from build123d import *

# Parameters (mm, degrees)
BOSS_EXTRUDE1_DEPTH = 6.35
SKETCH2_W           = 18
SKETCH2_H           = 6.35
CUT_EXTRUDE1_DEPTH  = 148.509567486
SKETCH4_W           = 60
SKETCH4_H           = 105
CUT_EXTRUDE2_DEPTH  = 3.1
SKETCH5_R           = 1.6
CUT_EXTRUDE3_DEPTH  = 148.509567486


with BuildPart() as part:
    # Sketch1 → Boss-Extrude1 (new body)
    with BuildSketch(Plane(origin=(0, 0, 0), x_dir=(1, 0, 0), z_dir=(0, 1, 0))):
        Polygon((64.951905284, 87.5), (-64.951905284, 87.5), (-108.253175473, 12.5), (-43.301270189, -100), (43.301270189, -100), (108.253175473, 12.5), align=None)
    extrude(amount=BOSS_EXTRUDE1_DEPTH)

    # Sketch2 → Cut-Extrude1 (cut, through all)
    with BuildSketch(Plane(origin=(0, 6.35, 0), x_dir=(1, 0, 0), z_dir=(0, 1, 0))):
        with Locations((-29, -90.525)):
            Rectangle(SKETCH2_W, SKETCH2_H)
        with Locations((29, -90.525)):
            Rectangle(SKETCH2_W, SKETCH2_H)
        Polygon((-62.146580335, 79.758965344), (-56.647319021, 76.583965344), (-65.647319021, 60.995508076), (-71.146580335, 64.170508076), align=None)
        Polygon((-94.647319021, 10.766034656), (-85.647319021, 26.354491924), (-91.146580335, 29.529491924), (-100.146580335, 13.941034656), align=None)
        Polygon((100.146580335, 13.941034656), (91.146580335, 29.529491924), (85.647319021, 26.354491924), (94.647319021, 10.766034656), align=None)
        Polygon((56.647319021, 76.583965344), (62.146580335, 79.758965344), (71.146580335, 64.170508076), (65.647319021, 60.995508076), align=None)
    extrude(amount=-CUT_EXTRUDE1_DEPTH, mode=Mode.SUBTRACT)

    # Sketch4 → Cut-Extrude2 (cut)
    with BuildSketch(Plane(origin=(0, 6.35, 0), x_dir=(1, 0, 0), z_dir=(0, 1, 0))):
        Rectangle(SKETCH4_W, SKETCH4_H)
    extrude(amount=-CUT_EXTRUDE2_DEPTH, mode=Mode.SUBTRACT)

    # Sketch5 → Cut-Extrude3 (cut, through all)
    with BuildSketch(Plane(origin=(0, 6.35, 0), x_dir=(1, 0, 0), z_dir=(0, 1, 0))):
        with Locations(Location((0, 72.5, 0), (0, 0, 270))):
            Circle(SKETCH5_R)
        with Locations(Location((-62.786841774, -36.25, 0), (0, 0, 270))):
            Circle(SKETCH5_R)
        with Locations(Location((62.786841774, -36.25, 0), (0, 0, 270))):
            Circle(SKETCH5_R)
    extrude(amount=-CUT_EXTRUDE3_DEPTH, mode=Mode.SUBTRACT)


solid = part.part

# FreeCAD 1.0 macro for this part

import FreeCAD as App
import Part
import Sketcher

V = App.Vector
Q = App.Units.Quantity


def add_polygon(sketch, points):
    """Adds a closed chain of lines whose ends are joined by coincident constraints."""
    first, n = sketch.GeometryCount, len(points)
    for a, b in zip(points, points[1:] + points[:1]):
        sketch.addGeometry(Part.LineSegment(App.Vector(*a, 0), App.Vector(*b, 0)), False)
    for i in range(n):
        sketch.addConstraint(Sketcher.Constraint("Coincident", first + i, 2, first + (i + 1) % n, 1))

doc = App.newDocument("Part")
params = doc.addObject("Spreadsheet::Sheet", "Params")
for row, (alias, value) in enumerate([
    ("pad1_length", "6.35 mm"),
    ("sketch2_width", "18 mm"),
    ("sketch2_length", "18 mm"),
    ("sketch2_height", "6.35 mm"),
    ("sketch2_length2", "6.35 mm"),
    ("sketch3_width", "60 mm"),
    ("sketch3_height", "105 mm"),
    ("pocket2_length", "3.1 mm"),
    ("sketch4_diameter", "3.2 mm"),
], start=1):
    params.set(f"A{row}", alias)
    params.set(f"B{row}", "=" + value)
    params.setAlias(f"B{row}", alias)

body = doc.addObject("PartDesign::Body", "Body")

# Sketch on XZ plane
sketch1 = doc.addObject("Sketcher::SketchObject", "Sketch")
body.addObject(sketch1)
sketch1.AttachmentSupport = (doc.XZ_Plane, [""])
sketch1.MapMode = "FlatFace"
add_polygon(sketch1, [(65, -88), (-65, -88), (-108, -12), (-43, 100), (43, 100), (108, -12)])  # lines 0-5
sketch1.addConstraint(Sketcher.Constraint("Horizontal", 0))
sketch1.addConstraint(Sketcher.Constraint("Horizontal", 3))
sketch1.addConstraint(Sketcher.Constraint("Symmetric", 1, 2, 4, 2, -2))
sketch1.addConstraint(Sketcher.Constraint("Parallel", 1, 4))
sketch1.addConstraint(Sketcher.Constraint("Parallel", 2, 5))
sketch1.addConstraint(Sketcher.Constraint("Equal", 2, 4))
sketch1.addConstraint(Sketcher.Constraint("Angle", 1, Q("120 deg")))
sketch1.addConstraint(Sketcher.Constraint("DistanceY", -1, 1, 2, 2, 100.0))
sketch1.addConstraint(Sketcher.Constraint("DistanceY", 0, 2, 1, 2, 75.0))
sketch1.addConstraint(Sketcher.Constraint("DistanceY", 0, 2, -1, 1, 87.5))
sketch1.addConstraint(Sketcher.Constraint("DistanceX", 0, 2, 0, 1, 129.903811))
pad1 = doc.addObject("PartDesign::Pad", "Pad")
body.addObject(pad1)
pad1.Profile = sketch1
pad1.setExpression("Length", "Params.pad1_length")
pad1.Reversed = True

# Sketch on XZ plane
sketch2 = doc.addObject("Sketcher::SketchObject", "Sketch001")
body.addObject(sketch2)
sketch2.AttachmentSupport = (doc.XZ_Plane, [""])
sketch2.MapMode = "FlatFace"
sketch2.AttachmentOffset = App.Placement(V(0, 0, -6.35), App.Rotation())
add_polygon(sketch2, [(-38, 87), (-38, 94), (-20, 94), (-20, 87)])  # lines 0-3
add_polygon(sketch2, [(20, 87), (20, 94), (38, 94), (38, 87)])  # lines 4-7
add_polygon(sketch2, [(-57, -77), (-62, -80), (-71, -64), (-66, -61)])  # lines 8-11
add_polygon(sketch2, [(-95, -11), (-86, -26), (-91, -30), (-100, -14)])  # lines 12-15
add_polygon(sketch2, [(100, -14), (91, -30), (86, -26), (95, -11)])  # lines 16-19
add_polygon(sketch2, [(62, -80), (57, -77), (66, -61), (71, -64)])  # lines 20-23
sketch2.addConstraint(Sketcher.Constraint("Vertical", 0))
sketch2.addConstraint(Sketcher.Constraint("Horizontal", 1))
sketch2.addConstraint(Sketcher.Constraint("Vertical", 2))
sketch2.addConstraint(Sketcher.Constraint("Horizontal", 3))
sketch2.addConstraint(Sketcher.Constraint("Vertical", 4))
sketch2.addConstraint(Sketcher.Constraint("Horizontal", 5))
sketch2.addConstraint(Sketcher.Constraint("Vertical", 6))
sketch2.addConstraint(Sketcher.Constraint("Horizontal", 7))
sketch2.addConstraint(Sketcher.Constraint("Symmetric", 1, 2, 4, 2, -2))
sketch2.addConstraint(Sketcher.Constraint("Symmetric", 3, 2, 6, 2, -2))
sketch2.addConstraint(Sketcher.Constraint("Symmetric", 13, 2, 16, 2, -2))
sketch2.addConstraint(Sketcher.Constraint("Symmetric", 12, 2, 17, 2, -2))
sketch2.addConstraint(Sketcher.Constraint("Symmetric", 15, 2, 18, 2, -2))
sketch2.addConstraint(Sketcher.Constraint("Symmetric", 14, 2, 19, 2, -2))
sketch2.addConstraint(Sketcher.Constraint("Symmetric", 11, 2, 20, 2, -2))
sketch2.addConstraint(Sketcher.Constraint("Symmetric", 10, 2, 21, 2, -2))
sketch2.addConstraint(Sketcher.Constraint("Symmetric", 9, 2, 22, 2, -2))
sketch2.addConstraint(Sketcher.Constraint("Symmetric", 8, 2, 23, 2, -2))
sketch2.addConstraint(Sketcher.Constraint("Perpendicular", 8, 9))
sketch2.addConstraint(Sketcher.Constraint("Perpendicular", 9, 10))
sketch2.addConstraint(Sketcher.Constraint("Perpendicular", 10, 11))
sketch2.addConstraint(Sketcher.Constraint("Parallel", 11, 12))
sketch2.addConstraint(Sketcher.Constraint("Perpendicular", 12, 13))
sketch2.addConstraint(Sketcher.Constraint("Perpendicular", 13, 14))
sketch2.addConstraint(Sketcher.Constraint("Perpendicular", 14, 15))
sketch2.addConstraint(Sketcher.Constraint("Equal", 11, 12))
sketch2.addConstraint(Sketcher.Constraint("Equal", 10, 13))
sketch2.addConstraint(Sketcher.Constraint("DistanceX", 1, 1, 1, 2, 18.0))
sketch2.addConstraint(Sketcher.Constraint("Angle", 8, Q("-150 deg")))
sketch2.addConstraint(Sketcher.Constraint("Distance", 9, 18.0))
sketch2.addConstraint(Sketcher.Constraint("DistanceX", 0, 2, -1, 1, 38.0))
sketch2.addConstraint(Sketcher.Constraint("DistanceX", 12, 2, 10, 2, 20.0))
sketch2.addConstraint(Sketcher.Constraint("DistanceY", 0, 1, 0, 2, 6.35))
sketch2.addConstraint(Sketcher.Constraint("DistanceY", -1, 1, 0, 2, 93.7))
sketch2.addConstraint(Sketcher.Constraint("Distance", 8, 6.35))
sketch2.addConstraint(Sketcher.Constraint("DistanceX", 11, 2, 16, 2, 147.793899))
sketch2.addConstraint(Sketcher.Constraint("DistanceY", 9, 2, -1, 1, 64.170508))
sketch2.addConstraint(Sketcher.Constraint("DistanceY", 12, 2, -1, 1, 26.354492))
sketch2.setExpression("Constraints[51]", "Params.sketch2_width")
sketch2.setExpression("Constraints[53]", "Params.sketch2_length")
sketch2.setExpression("Constraints[56]", "Params.sketch2_height")
sketch2.setExpression("Constraints[58]", "Params.sketch2_length2")
pocket1 = doc.addObject("PartDesign::Pocket", "Pocket")
body.addObject(pocket1)
pocket1.Profile = sketch2
pocket1.Type = "ThroughAll"
pocket1.Reversed = True

# Sketch on XZ plane
sketch3 = doc.addObject("Sketcher::SketchObject", "Sketch002")
body.addObject(sketch3)
sketch3.AttachmentSupport = (doc.XZ_Plane, [""])
sketch3.MapMode = "FlatFace"
sketch3.AttachmentOffset = App.Placement(V(0, 0, -6.35), App.Rotation())
add_polygon(sketch3, [(-30, -52), (-30, 52), (30, 52), (30, -52)])  # lines 0-3
sketch3.addConstraint(Sketcher.Constraint("Vertical", 0))
sketch3.addConstraint(Sketcher.Constraint("Horizontal", 1))
sketch3.addConstraint(Sketcher.Constraint("Vertical", 2))
sketch3.addConstraint(Sketcher.Constraint("Horizontal", 3))
sketch3.addConstraint(Sketcher.Constraint("Symmetric", 0, 2, 2, 2, -1, 1))
sketch3.addConstraint(Sketcher.Constraint("DistanceX", 1, 1, 1, 2, 60.0))
sketch3.addConstraint(Sketcher.Constraint("DistanceY", 0, 1, 0, 2, 105.0))
sketch3.setExpression("Constraints[9]", "Params.sketch3_width")
sketch3.setExpression("Constraints[10]", "Params.sketch3_height")
pocket2 = doc.addObject("PartDesign::Pocket", "Pocket001")
body.addObject(pocket2)
pocket2.Profile = sketch3
pocket2.setExpression("Length", "Params.pocket2_length")
pocket2.Reversed = True

# Sketch on XZ plane
sketch4 = doc.addObject("Sketcher::SketchObject", "Sketch003")
body.addObject(sketch4)
sketch4.AttachmentSupport = (doc.XZ_Plane, [""])
sketch4.MapMode = "FlatFace"
sketch4.AttachmentOffset = App.Placement(V(0, 0, -6.35), App.Rotation())
sketch4.addGeometry(Part.Circle(V(0, -72.5, 0), V(0, 0, 1), 1.6), False)
sketch4.addGeometry(Part.Circle(V(-62.8, 36.2, 0), V(0, 0, 1), 1.6), False)
sketch4.addGeometry(Part.Circle(V(62.8, 36.2, 0), V(0, 0, 1), 1.6), False)
sketch4.addConstraint(Sketcher.Constraint("Equal", 0, 1))
sketch4.addConstraint(Sketcher.Constraint("Equal", 1, 2))
sketch4.addConstraint(Sketcher.Constraint("Symmetric", 1, 3, 2, 3, -2))
sketch4.addConstraint(Sketcher.Constraint("PointOnObject", 0, 3, -2))
sketch4.addConstraint(Sketcher.Constraint("Diameter", 0, 3.2))
sketch4.addConstraint(Sketcher.Constraint("DistanceY", 0, 3, -1, 1, 72.5))
sketch4.addConstraint(Sketcher.Constraint("DistanceY", -1, 1, 1, 3, 36.25))
sketch4.addConstraint(Sketcher.Constraint("DistanceX", 1, 3, -1, 1, 62.786842))
sketch4.setExpression("Constraints[4]", "Params.sketch4_diameter")
pocket3 = doc.addObject("PartDesign::Pocket", "Pocket002")
body.addObject(pocket3)
pocket3.Profile = sketch4
pocket3.Type = "ThroughAll"
pocket3.Reversed = True

doc.recompute()
